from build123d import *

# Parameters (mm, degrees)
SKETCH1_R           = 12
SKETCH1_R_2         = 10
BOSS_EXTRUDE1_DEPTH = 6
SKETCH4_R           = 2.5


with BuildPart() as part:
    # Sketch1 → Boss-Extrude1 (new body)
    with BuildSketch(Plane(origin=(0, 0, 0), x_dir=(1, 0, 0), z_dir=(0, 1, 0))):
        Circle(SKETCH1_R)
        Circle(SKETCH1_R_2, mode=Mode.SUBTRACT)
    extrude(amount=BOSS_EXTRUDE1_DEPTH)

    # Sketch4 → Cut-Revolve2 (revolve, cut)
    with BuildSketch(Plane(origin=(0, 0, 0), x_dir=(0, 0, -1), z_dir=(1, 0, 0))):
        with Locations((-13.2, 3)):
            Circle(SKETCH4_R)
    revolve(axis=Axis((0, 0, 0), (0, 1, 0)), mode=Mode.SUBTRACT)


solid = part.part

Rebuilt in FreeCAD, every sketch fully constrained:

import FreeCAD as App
import Part
import Sketcher

V = App.Vector

doc = App.newDocument("Part")
body = doc.addObject("PartDesign::Body", "Body")

# Sketch on XZ plane
sketch1 = body.newObject("Sketcher::SketchObject", "Sketch")
sketch1.AttachmentSupport = (doc.getObject("XZ_Plane"), [""])
sketch1.MapMode = "FlatFace"
sketch1.addGeometry([
    Part.Circle(V(0, 0, 0), V(0, 0, 1), 12),
    Part.Circle(V(0, 0, 0), V(0, 0, 1), 10),
], False)
sketch1.addConstraint([
    Sketcher.Constraint("Coincident", 0, 3, -1, 1),
    Sketcher.Constraint("Coincident", 1, 3, -1, 1),
    Sketcher.Constraint("Diameter", 0, 24.0),
    Sketcher.Constraint("Diameter", 1, 20.0),
])
pad1 = body.newObject("PartDesign::Pad", "Pad")
pad1.Profile = sketch1
pad1.Length = 6
pad1.Reversed = True

# Sketch on YZ plane
sketch2 = body.newObject("Sketcher::SketchObject", "Sketch001")
sketch2.AttachmentSupport = (doc.getObject("YZ_Plane"), [""])
sketch2.MapMode = "FlatFace"
sketch2.addGeometry(Part.Circle(V(3, 13.2, 0), V(0, 0, 1), 2.5), False)
sketch2.addConstraint([
    Sketcher.Constraint("Diameter", 0, 5.0),
    Sketcher.Constraint("DistanceX", -1, 1, 0, 3, 3.0),
    Sketcher.Constraint("DistanceY", -1, 1, 0, 3, 13.2),
])
groove = body.newObject("PartDesign::Groove", "Groove")
groove.Profile = sketch2
groove.ReferenceAxis = (sketch2, ["H_Axis"])
groove.Angle = 360

doc.recompute()
